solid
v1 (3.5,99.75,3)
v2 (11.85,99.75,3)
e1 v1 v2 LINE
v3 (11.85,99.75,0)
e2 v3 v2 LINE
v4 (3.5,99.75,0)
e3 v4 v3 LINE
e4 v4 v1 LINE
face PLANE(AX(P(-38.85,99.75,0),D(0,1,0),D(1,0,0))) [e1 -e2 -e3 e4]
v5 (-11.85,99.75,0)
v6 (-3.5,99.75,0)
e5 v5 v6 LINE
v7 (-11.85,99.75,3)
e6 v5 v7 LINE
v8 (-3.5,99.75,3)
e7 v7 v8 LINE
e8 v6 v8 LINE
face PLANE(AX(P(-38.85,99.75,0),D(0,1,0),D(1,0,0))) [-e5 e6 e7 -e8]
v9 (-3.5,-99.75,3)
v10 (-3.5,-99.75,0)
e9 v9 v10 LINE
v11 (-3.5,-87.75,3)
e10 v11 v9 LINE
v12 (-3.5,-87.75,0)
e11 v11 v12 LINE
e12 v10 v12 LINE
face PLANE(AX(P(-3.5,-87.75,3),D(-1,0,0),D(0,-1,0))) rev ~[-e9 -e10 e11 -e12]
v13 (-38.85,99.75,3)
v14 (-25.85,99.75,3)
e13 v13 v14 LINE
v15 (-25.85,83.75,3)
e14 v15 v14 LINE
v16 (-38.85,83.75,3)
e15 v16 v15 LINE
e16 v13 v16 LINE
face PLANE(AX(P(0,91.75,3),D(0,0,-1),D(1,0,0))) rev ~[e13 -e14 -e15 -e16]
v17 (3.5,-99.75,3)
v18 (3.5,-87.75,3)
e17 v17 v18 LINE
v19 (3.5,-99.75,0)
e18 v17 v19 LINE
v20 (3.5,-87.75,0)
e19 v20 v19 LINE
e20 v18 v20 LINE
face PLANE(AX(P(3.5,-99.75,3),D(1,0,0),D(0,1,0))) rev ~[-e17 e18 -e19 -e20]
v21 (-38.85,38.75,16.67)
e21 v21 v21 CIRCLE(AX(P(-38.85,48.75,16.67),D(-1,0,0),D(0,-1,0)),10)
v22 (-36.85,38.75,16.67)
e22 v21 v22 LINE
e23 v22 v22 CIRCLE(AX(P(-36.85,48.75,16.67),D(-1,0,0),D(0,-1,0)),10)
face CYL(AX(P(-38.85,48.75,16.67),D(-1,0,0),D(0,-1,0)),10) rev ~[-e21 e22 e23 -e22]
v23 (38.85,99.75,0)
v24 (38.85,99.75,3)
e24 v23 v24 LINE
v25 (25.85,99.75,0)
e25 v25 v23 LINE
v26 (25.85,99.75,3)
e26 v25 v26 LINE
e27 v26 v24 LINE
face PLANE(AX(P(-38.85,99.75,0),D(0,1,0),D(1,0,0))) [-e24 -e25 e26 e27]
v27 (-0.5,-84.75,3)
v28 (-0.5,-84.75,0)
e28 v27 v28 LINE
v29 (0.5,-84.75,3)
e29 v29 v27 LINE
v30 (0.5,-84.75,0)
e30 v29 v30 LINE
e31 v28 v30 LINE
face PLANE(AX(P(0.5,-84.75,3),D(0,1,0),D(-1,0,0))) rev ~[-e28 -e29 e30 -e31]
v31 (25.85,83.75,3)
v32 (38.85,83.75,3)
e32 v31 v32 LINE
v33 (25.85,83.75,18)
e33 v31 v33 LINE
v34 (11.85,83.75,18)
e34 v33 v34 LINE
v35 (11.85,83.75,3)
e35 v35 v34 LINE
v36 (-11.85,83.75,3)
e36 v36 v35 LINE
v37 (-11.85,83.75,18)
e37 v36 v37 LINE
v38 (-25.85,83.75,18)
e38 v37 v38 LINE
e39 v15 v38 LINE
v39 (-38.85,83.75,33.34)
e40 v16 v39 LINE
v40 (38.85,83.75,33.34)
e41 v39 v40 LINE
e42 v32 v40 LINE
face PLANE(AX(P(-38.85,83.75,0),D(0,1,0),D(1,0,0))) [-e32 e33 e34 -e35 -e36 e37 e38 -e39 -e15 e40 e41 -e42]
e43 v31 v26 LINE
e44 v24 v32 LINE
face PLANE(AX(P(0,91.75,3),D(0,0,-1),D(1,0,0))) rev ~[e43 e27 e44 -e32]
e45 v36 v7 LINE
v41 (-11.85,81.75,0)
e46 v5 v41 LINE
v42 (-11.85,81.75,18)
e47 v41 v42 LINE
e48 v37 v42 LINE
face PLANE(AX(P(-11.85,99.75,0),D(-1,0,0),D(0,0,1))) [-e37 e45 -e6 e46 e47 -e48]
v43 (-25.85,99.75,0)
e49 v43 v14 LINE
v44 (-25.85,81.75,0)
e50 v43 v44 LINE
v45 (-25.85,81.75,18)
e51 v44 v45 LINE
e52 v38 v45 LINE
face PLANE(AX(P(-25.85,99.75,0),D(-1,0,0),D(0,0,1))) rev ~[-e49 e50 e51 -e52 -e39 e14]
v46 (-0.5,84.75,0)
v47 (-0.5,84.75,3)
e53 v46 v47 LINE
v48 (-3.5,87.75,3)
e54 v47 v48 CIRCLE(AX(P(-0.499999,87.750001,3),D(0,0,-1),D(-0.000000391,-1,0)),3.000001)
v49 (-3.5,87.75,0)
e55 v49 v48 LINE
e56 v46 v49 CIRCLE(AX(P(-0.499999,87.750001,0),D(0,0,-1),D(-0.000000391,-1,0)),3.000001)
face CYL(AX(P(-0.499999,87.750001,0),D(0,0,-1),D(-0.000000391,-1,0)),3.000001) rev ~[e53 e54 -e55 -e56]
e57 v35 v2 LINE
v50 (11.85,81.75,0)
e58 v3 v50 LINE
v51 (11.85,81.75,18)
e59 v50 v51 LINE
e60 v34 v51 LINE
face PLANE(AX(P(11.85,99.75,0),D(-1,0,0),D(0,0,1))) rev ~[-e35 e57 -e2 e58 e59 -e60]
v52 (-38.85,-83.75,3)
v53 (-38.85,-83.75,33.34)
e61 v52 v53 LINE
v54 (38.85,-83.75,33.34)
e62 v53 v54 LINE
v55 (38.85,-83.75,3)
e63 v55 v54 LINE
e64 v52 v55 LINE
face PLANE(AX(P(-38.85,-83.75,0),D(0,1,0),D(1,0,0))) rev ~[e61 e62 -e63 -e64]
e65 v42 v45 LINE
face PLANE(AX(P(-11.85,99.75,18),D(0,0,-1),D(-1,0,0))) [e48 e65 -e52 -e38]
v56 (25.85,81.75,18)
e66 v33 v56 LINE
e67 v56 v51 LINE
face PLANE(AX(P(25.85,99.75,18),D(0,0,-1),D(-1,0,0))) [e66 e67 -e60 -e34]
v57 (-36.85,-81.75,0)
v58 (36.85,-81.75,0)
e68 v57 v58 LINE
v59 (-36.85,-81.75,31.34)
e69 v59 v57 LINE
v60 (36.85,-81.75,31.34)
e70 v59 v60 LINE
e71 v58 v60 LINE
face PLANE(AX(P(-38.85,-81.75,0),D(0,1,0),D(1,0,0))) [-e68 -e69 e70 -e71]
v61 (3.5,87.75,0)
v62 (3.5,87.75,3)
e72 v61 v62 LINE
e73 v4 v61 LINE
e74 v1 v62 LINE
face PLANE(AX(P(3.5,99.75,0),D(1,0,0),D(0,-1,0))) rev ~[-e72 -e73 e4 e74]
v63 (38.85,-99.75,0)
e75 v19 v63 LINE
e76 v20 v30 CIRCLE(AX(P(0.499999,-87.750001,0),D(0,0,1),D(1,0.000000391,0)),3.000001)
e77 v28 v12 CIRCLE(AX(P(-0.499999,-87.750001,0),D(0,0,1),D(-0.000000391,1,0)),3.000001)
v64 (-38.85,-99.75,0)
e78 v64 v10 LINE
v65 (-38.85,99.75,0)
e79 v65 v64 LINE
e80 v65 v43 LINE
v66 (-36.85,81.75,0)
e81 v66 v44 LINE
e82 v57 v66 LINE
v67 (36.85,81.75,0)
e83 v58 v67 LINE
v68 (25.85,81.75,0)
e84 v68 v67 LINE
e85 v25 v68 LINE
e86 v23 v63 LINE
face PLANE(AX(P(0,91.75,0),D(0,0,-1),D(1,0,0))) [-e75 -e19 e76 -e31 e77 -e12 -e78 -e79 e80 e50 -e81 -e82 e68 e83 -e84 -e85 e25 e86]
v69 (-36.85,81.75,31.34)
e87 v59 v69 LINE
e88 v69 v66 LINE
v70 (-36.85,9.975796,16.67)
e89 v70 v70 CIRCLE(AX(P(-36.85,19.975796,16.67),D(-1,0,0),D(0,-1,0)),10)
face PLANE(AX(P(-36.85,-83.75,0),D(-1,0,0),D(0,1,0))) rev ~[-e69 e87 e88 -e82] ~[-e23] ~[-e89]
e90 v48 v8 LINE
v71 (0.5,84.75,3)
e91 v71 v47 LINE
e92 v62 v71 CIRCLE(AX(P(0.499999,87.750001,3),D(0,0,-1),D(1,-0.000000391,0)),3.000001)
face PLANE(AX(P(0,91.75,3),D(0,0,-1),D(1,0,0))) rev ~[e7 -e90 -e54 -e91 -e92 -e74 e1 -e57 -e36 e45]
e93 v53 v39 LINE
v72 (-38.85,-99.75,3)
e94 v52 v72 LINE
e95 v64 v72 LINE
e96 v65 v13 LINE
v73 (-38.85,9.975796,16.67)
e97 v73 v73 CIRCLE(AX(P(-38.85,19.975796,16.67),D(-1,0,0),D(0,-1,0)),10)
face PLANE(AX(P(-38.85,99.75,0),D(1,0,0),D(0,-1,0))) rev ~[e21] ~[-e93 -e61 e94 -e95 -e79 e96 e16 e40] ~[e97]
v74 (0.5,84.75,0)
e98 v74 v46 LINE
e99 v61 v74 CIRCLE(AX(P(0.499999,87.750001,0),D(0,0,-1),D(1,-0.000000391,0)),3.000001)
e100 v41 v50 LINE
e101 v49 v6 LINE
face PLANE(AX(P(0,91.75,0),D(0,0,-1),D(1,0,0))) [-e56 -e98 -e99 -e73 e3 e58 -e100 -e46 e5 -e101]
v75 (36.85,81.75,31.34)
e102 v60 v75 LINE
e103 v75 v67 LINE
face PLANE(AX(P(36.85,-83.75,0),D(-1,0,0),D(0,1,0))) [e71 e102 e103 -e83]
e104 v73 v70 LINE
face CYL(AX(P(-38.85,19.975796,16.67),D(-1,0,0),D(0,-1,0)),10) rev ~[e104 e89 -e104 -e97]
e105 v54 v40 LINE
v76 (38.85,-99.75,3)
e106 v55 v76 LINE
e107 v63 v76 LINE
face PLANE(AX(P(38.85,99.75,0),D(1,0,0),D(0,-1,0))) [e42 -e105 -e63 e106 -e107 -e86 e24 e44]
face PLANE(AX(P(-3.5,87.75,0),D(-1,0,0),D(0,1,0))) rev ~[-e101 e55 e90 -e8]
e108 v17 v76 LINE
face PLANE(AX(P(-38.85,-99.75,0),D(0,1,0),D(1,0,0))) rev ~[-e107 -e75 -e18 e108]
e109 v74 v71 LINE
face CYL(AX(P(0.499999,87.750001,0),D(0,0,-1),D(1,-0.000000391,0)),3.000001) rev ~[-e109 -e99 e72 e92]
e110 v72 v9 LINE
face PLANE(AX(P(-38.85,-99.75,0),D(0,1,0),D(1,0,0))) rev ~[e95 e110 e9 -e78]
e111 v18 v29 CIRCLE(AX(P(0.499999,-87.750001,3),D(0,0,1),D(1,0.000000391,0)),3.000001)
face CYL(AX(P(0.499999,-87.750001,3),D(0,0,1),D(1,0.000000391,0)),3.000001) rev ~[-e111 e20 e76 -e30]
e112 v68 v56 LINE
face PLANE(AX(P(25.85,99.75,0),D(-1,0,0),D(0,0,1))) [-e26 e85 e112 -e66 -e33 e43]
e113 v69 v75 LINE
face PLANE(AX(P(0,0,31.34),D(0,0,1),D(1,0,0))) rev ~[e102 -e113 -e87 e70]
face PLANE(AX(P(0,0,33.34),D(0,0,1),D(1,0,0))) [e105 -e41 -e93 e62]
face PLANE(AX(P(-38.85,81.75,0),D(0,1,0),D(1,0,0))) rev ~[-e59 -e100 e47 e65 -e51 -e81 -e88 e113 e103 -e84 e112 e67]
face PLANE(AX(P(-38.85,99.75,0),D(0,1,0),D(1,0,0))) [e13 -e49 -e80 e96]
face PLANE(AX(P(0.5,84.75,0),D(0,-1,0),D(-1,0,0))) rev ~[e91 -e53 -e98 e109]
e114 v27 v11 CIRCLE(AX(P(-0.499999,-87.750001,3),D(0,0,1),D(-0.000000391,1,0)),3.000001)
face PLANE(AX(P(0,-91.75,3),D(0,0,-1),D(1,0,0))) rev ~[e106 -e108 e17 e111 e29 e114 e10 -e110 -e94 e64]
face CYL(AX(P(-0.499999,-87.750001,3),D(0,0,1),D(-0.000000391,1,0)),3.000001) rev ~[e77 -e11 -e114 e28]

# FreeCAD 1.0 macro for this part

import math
import FreeCAD as App
import Part
import Sketcher


def faces_at(feature, points):
    """Names of the faces that lie closest to the given points."""
    faces = feature.Shape.Faces
    near = lambda p: min(range(len(faces)), key=lambda i: faces[i].distToShape(Part.Vertex(*p))[0])
    return sorted({f"Face{near(p) + 1}" for p in points})


def add_polygon(sketch, points):
    """Adds a closed chain of lines whose ends are joined by coincident constraints."""
    first, n = sketch.GeometryCount, len(points)
    for a, b in zip(points, points[1:] + points[:1]):
        sketch.addGeometry(Part.LineSegment(App.Vector(*a, 0), App.Vector(*b, 0)), False)
    for i in range(n):
        sketch.addConstraint(Sketcher.Constraint("Coincident", first + i, 2, first + (i + 1) % n, 1))

doc = App.newDocument("Part")
body = doc.addObject("PartDesign::Body", "Body")

sketch1 = doc.addObject("Sketcher::SketchObject", "Sketch")
body.addObject(sketch1)
sketch1.AttachmentSupport = (doc.XY_Plane, [""])
sketch1.MapMode = "FlatFace"
add_polygon(sketch1, [(-39, 84), (-39, -84), (39, -84), (39, 84)])
sketch1.addConstraint([
    Sketcher.Constraint("Vertical", 0),
    Sketcher.Constraint("Horizontal", 1),
    Sketcher.Constraint("Vertical", 2),
    Sketcher.Constraint("Horizontal", 3),
    Sketcher.Constraint("Symmetric", 0, 2, 2, 2, -1, 1),
    Sketcher.Constraint("DistanceX", 1, 1, 1, 2, 77.7),
    Sketcher.Constraint("DistanceY", 0, 2, 0, 1, 167.5),
])
pad1 = doc.addObject("PartDesign::Pad", "Pad")
body.addObject(pad1)
pad1.Profile = sketch1
pad1.Length = 33.34
doc.recompute()

thickness = doc.addObject("PartDesign::Thickness", "Thickness")
body.addObject(thickness)
thickness.Base = (pad1, faces_at(pad1, [(0, 0, 0)]))
thickness.Value = 2
thickness.Reversed = True
thickness.Join = "Arc"

sketch2 = doc.addObject("Sketcher::SketchObject", "Sketch001")
body.addObject(sketch2)
sketch2.AttachmentSupport = (doc.YZ_Plane, [""])
sketch2.MapMode = "FlatFace"
sketch2.AttachmentOffset = App.Placement(App.Vector(0, 0, -38.85), App.Rotation())
sketch2.addGeometry([
    Part.Circle(App.Vector(20, 17, 0), App.Vector(0, 0, 1), 10),
    Part.Circle(App.Vector(49, 17, 0), App.Vector(0, 0, 1), 10),
], False)
sketch2.addConstraint([
    Sketcher.Constraint("Equal", 0, 1),
    Sketcher.Constraint("Horizontal", 0, 3, 1, 3),
    Sketcher.Constraint("Diameter", 0, 20.0),
    Sketcher.Constraint("DistanceY", -1, 1, 0, 3, 16.67),
    Sketcher.Constraint("DistanceX", -1, 1, 1, 3, 48.75),
    Sketcher.Constraint("DistanceX", -1, 1, 0, 3, 19.975796),
])
pocket1 = doc.addObject("PartDesign::Pocket", "Pocket")
body.addObject(pocket1)
pocket1.Profile = sketch2
pocket1.Length = 25
pocket1.Reversed = True

sketch3 = doc.addObject("Sketcher::SketchObject", "Sketch002")
body.addObject(sketch3)
sketch3.AttachmentSupport = (doc.XY_Plane, [""])
sketch3.MapMode = "FlatFace"
add_polygon(sketch3, [(-39, -100), (-39, -84), (39, -84), (39, -100)])
sketch3.addConstraint([
    Sketcher.Constraint("Vertical", 0),
    Sketcher.Constraint("Horizontal", 1),
    Sketcher.Constraint("Vertical", 2),
    Sketcher.Constraint("Horizontal", 3),
    Sketcher.Constraint("DistanceY", 0, 1, 0, 2, 16.0),
    Sketcher.Constraint("DistanceX", 1, 1, 1, 2, 77.7),
    Sketcher.Constraint("DistanceX", 0, 2, -1, 1, 38.85),
    Sketcher.Constraint("DistanceY", 0, 2, -1, 1, 83.75),
])
pad2 = doc.addObject("PartDesign::Pad", "Pad001")
body.addObject(pad2)
pad2.Profile = sketch3
pad2.Length = 3

sketch4 = doc.addObject("Sketcher::SketchObject", "Sketch003")
body.addObject(sketch4)
sketch4.AttachmentSupport = (doc.XY_Plane, [""])
sketch4.MapMode = "FlatFace"
sketch4.AttachmentOffset = App.Placement(App.Vector(0, 0, 3), App.Rotation())
sketch4.addGeometry([
    Part.LineSegment(App.Vector(-3.5, -87.8, 0), App.Vector(-3.5, -99.8, 0)),
    Part.LineSegment(App.Vector(-3.5, -99.8, 0), App.Vector(3.5, -99.8, 0)),
    Part.LineSegment(App.Vector(3.5, -99.8, 0), App.Vector(3.5, -87.8, 0)),
    Part.ArcOfCircle(Part.Circle(App.Vector(0.5, -87.8, 0), App.Vector(0, 0, 1), 3), math.radians(0), math.radians(90)),
    Part.LineSegment(App.Vector(0.5, -84.8, 0), App.Vector(-0.5, -84.8, 0)),
    Part.ArcOfCircle(Part.Circle(App.Vector(-0.5, -87.8, 0), App.Vector(0, 0, 1), 3), math.radians(90), math.radians(180)),
], False)
sketch4.addConstraint([
    Sketcher.Constraint("Coincident", 0, 2, 1, 1),
    Sketcher.Constraint("Coincident", 1, 2, 2, 1),
    Sketcher.Constraint("Tangent", 2, 2, 3, 1),
    Sketcher.Constraint("Tangent", 3, 2, 4, 1),
    Sketcher.Constraint("Tangent", 4, 2, 5, 1),
    Sketcher.Constraint("Tangent", 5, 2, 0, 1),
    Sketcher.Constraint("Vertical", 0),
    Sketcher.Constraint("Horizontal", 1),
    Sketcher.Constraint("Vertical", 2),
    Sketcher.Constraint("Horizontal", 4),
    Sketcher.Constraint("Equal", 3, 5),
    Sketcher.Constraint("Radius", 3, 3.000001),
    Sketcher.Constraint("DistanceX", 1, 1, 1, 2, 7.0),
    Sketcher.Constraint("DistanceY", 0, 2, 0, 1, 12.0),
    Sketcher.Constraint("DistanceX", -1, 1, 3, 3, 0.499999),
    Sketcher.Constraint("DistanceY", 3, 3, -1, 1, 87.750001),
])
pocket2 = doc.addObject("PartDesign::Pocket", "Pocket001")
body.addObject(pocket2)
pocket2.Profile = sketch4
pocket2.Length = 25

sketch5 = doc.addObject("Sketcher::SketchObject", "Sketch004")
body.addObject(sketch5)
sketch5.AttachmentSupport = (doc.XY_Plane, [""])
sketch5.MapMode = "FlatFace"
add_polygon(sketch5, [(-39, 84), (-39, 100), (39, 100), (39, 84)])
sketch5.addConstraint([
    Sketcher.Constraint("Vertical", 0),
    Sketcher.Constraint("Horizontal", 1),
    Sketcher.Constraint("Vertical", 2),
    Sketcher.Constraint("Horizontal", 3),
    Sketcher.Constraint("DistanceY", 0, 1, 0, 2, 16.0),
    Sketcher.Constraint("DistanceX", 1, 1, 1, 2, 77.7),
    Sketcher.Constraint("DistanceX", 0, 2, -1, 1, 38.85),
    Sketcher.Constraint("DistanceY", -1, 1, 0, 2, 99.75),
])
pad3 = doc.addObject("PartDesign::Pad", "Pad002")
body.addObject(pad3)
pad3.Profile = sketch5
pad3.Length = 3

sketch6 = doc.addObject("Sketcher::SketchObject", "Sketch005")
body.addObject(sketch6)
sketch6.AttachmentSupport = (doc.XY_Plane, [""])
sketch6.MapMode = "FlatFace"
sketch6.addGeometry([
    Part.LineSegment(App.Vector(-3.5, 87.8, 0), App.Vector(-3.5, 99.8, 0)),
    Part.LineSegment(App.Vector(-3.5, 99.8, 0), App.Vector(3.5, 99.8, 0)),
    Part.LineSegment(App.Vector(3.5, 99.8, 0), App.Vector(3.5, 87.8, 0)),
    Part.ArcOfCircle(Part.Circle(App.Vector(0.5, 87.8, 0), App.Vector(0, 0, 1), 3), math.radians(-90), math.radians(0)),
    Part.LineSegment(App.Vector(0.5, 84.8, 0), App.Vector(-0.5, 84.8, 0)),
    Part.ArcOfCircle(Part.Circle(App.Vector(-0.5, 87.8, 0), App.Vector(0, 0, 1), 3), math.radians(-180), math.radians(-90)),
], False)
sketch6.addConstraint([
    Sketcher.Constraint("Coincident", 0, 2, 1, 1),
    Sketcher.Constraint("Coincident", 1, 2, 2, 1),
    Sketcher.Constraint("Tangent", 2, 2, 3, 2),
    Sketcher.Constraint("Tangent", 3, 1, 4, 1),
    Sketcher.Constraint("Tangent", 4, 2, 5, 2),
    Sketcher.Constraint("Tangent", 5, 1, 0, 1),
    Sketcher.Constraint("Vertical", 0),
    Sketcher.Constraint("Horizontal", 1),
    Sketcher.Constraint("Vertical", 2),
    Sketcher.Constraint("Horizontal", 4),
    Sketcher.Constraint("Equal", 3, 5),
    Sketcher.Constraint("Radius", 3, 3.000001),
    Sketcher.Constraint("DistanceX", 1, 1, 1, 2, 7.0),
    Sketcher.Constraint("DistanceY", 0, 1, 0, 2, 12.0),
    Sketcher.Constraint("DistanceX", -1, 1, 3, 3, 0.499999),
    Sketcher.Constraint("DistanceY", -1, 1, 3, 3, 87.750001),
])
pocket3 = doc.addObject("PartDesign::Pocket", "Pocket002")
body.addObject(pocket3)
pocket3.Profile = sketch6
pocket3.Length = 25
pocket3.Reversed = True

sketch7 = doc.addObject("Sketcher::SketchObject", "Sketch006")
body.addObject(sketch7)
sketch7.AttachmentSupport = (doc.XZ_Plane, [""])
sketch7.MapMode = "FlatFace"
sketch7.AttachmentOffset = App.Placement(App.Vector(0, 0, -99.75), App.Rotation())
add_polygon(sketch7, [(-12, 18), (-12, 0), (-26, 0), (-26, 18)])
add_polygon(sketch7, [(26, 18), (26, 0), (12, 0), (12, 18)])
sketch7.addConstraint([
    Sketcher.Constraint("Vertical", 0),
    Sketcher.Constraint("Horizontal", 1),
    Sketcher.Constraint("Vertical", 2),
    Sketcher.Constraint("Horizontal", 3),
    Sketcher.Constraint("Vertical", 4),
    Sketcher.Constraint("Horizontal", 5),
    Sketcher.Constraint("Vertical", 6),
    Sketcher.Constraint("Horizontal", 7),
    Sketcher.Constraint("Symmetric", 1, 2, 4, 2, -1, 1),
    Sketcher.Constraint("Symmetric", 0, 2, 5, 2, -2),
    Sketcher.Constraint("Horizontal", 3, 2, 6, 2),
    Sketcher.Constraint("DistanceX", 1, 2, 1, 1, 14.0),
    Sketcher.Constraint("DistanceY", 0, 2, 0, 1, 18.0),
    Sketcher.Constraint("DistanceX", 0, 2, 4, 2, 37.7),
])
pocket4 = doc.addObject("PartDesign::Pocket", "Pocket003")
body.addObject(pocket4)
pocket4.Profile = sketch7
pocket4.Length = 25
pocket4.Reversed = True

doc.recompute()
